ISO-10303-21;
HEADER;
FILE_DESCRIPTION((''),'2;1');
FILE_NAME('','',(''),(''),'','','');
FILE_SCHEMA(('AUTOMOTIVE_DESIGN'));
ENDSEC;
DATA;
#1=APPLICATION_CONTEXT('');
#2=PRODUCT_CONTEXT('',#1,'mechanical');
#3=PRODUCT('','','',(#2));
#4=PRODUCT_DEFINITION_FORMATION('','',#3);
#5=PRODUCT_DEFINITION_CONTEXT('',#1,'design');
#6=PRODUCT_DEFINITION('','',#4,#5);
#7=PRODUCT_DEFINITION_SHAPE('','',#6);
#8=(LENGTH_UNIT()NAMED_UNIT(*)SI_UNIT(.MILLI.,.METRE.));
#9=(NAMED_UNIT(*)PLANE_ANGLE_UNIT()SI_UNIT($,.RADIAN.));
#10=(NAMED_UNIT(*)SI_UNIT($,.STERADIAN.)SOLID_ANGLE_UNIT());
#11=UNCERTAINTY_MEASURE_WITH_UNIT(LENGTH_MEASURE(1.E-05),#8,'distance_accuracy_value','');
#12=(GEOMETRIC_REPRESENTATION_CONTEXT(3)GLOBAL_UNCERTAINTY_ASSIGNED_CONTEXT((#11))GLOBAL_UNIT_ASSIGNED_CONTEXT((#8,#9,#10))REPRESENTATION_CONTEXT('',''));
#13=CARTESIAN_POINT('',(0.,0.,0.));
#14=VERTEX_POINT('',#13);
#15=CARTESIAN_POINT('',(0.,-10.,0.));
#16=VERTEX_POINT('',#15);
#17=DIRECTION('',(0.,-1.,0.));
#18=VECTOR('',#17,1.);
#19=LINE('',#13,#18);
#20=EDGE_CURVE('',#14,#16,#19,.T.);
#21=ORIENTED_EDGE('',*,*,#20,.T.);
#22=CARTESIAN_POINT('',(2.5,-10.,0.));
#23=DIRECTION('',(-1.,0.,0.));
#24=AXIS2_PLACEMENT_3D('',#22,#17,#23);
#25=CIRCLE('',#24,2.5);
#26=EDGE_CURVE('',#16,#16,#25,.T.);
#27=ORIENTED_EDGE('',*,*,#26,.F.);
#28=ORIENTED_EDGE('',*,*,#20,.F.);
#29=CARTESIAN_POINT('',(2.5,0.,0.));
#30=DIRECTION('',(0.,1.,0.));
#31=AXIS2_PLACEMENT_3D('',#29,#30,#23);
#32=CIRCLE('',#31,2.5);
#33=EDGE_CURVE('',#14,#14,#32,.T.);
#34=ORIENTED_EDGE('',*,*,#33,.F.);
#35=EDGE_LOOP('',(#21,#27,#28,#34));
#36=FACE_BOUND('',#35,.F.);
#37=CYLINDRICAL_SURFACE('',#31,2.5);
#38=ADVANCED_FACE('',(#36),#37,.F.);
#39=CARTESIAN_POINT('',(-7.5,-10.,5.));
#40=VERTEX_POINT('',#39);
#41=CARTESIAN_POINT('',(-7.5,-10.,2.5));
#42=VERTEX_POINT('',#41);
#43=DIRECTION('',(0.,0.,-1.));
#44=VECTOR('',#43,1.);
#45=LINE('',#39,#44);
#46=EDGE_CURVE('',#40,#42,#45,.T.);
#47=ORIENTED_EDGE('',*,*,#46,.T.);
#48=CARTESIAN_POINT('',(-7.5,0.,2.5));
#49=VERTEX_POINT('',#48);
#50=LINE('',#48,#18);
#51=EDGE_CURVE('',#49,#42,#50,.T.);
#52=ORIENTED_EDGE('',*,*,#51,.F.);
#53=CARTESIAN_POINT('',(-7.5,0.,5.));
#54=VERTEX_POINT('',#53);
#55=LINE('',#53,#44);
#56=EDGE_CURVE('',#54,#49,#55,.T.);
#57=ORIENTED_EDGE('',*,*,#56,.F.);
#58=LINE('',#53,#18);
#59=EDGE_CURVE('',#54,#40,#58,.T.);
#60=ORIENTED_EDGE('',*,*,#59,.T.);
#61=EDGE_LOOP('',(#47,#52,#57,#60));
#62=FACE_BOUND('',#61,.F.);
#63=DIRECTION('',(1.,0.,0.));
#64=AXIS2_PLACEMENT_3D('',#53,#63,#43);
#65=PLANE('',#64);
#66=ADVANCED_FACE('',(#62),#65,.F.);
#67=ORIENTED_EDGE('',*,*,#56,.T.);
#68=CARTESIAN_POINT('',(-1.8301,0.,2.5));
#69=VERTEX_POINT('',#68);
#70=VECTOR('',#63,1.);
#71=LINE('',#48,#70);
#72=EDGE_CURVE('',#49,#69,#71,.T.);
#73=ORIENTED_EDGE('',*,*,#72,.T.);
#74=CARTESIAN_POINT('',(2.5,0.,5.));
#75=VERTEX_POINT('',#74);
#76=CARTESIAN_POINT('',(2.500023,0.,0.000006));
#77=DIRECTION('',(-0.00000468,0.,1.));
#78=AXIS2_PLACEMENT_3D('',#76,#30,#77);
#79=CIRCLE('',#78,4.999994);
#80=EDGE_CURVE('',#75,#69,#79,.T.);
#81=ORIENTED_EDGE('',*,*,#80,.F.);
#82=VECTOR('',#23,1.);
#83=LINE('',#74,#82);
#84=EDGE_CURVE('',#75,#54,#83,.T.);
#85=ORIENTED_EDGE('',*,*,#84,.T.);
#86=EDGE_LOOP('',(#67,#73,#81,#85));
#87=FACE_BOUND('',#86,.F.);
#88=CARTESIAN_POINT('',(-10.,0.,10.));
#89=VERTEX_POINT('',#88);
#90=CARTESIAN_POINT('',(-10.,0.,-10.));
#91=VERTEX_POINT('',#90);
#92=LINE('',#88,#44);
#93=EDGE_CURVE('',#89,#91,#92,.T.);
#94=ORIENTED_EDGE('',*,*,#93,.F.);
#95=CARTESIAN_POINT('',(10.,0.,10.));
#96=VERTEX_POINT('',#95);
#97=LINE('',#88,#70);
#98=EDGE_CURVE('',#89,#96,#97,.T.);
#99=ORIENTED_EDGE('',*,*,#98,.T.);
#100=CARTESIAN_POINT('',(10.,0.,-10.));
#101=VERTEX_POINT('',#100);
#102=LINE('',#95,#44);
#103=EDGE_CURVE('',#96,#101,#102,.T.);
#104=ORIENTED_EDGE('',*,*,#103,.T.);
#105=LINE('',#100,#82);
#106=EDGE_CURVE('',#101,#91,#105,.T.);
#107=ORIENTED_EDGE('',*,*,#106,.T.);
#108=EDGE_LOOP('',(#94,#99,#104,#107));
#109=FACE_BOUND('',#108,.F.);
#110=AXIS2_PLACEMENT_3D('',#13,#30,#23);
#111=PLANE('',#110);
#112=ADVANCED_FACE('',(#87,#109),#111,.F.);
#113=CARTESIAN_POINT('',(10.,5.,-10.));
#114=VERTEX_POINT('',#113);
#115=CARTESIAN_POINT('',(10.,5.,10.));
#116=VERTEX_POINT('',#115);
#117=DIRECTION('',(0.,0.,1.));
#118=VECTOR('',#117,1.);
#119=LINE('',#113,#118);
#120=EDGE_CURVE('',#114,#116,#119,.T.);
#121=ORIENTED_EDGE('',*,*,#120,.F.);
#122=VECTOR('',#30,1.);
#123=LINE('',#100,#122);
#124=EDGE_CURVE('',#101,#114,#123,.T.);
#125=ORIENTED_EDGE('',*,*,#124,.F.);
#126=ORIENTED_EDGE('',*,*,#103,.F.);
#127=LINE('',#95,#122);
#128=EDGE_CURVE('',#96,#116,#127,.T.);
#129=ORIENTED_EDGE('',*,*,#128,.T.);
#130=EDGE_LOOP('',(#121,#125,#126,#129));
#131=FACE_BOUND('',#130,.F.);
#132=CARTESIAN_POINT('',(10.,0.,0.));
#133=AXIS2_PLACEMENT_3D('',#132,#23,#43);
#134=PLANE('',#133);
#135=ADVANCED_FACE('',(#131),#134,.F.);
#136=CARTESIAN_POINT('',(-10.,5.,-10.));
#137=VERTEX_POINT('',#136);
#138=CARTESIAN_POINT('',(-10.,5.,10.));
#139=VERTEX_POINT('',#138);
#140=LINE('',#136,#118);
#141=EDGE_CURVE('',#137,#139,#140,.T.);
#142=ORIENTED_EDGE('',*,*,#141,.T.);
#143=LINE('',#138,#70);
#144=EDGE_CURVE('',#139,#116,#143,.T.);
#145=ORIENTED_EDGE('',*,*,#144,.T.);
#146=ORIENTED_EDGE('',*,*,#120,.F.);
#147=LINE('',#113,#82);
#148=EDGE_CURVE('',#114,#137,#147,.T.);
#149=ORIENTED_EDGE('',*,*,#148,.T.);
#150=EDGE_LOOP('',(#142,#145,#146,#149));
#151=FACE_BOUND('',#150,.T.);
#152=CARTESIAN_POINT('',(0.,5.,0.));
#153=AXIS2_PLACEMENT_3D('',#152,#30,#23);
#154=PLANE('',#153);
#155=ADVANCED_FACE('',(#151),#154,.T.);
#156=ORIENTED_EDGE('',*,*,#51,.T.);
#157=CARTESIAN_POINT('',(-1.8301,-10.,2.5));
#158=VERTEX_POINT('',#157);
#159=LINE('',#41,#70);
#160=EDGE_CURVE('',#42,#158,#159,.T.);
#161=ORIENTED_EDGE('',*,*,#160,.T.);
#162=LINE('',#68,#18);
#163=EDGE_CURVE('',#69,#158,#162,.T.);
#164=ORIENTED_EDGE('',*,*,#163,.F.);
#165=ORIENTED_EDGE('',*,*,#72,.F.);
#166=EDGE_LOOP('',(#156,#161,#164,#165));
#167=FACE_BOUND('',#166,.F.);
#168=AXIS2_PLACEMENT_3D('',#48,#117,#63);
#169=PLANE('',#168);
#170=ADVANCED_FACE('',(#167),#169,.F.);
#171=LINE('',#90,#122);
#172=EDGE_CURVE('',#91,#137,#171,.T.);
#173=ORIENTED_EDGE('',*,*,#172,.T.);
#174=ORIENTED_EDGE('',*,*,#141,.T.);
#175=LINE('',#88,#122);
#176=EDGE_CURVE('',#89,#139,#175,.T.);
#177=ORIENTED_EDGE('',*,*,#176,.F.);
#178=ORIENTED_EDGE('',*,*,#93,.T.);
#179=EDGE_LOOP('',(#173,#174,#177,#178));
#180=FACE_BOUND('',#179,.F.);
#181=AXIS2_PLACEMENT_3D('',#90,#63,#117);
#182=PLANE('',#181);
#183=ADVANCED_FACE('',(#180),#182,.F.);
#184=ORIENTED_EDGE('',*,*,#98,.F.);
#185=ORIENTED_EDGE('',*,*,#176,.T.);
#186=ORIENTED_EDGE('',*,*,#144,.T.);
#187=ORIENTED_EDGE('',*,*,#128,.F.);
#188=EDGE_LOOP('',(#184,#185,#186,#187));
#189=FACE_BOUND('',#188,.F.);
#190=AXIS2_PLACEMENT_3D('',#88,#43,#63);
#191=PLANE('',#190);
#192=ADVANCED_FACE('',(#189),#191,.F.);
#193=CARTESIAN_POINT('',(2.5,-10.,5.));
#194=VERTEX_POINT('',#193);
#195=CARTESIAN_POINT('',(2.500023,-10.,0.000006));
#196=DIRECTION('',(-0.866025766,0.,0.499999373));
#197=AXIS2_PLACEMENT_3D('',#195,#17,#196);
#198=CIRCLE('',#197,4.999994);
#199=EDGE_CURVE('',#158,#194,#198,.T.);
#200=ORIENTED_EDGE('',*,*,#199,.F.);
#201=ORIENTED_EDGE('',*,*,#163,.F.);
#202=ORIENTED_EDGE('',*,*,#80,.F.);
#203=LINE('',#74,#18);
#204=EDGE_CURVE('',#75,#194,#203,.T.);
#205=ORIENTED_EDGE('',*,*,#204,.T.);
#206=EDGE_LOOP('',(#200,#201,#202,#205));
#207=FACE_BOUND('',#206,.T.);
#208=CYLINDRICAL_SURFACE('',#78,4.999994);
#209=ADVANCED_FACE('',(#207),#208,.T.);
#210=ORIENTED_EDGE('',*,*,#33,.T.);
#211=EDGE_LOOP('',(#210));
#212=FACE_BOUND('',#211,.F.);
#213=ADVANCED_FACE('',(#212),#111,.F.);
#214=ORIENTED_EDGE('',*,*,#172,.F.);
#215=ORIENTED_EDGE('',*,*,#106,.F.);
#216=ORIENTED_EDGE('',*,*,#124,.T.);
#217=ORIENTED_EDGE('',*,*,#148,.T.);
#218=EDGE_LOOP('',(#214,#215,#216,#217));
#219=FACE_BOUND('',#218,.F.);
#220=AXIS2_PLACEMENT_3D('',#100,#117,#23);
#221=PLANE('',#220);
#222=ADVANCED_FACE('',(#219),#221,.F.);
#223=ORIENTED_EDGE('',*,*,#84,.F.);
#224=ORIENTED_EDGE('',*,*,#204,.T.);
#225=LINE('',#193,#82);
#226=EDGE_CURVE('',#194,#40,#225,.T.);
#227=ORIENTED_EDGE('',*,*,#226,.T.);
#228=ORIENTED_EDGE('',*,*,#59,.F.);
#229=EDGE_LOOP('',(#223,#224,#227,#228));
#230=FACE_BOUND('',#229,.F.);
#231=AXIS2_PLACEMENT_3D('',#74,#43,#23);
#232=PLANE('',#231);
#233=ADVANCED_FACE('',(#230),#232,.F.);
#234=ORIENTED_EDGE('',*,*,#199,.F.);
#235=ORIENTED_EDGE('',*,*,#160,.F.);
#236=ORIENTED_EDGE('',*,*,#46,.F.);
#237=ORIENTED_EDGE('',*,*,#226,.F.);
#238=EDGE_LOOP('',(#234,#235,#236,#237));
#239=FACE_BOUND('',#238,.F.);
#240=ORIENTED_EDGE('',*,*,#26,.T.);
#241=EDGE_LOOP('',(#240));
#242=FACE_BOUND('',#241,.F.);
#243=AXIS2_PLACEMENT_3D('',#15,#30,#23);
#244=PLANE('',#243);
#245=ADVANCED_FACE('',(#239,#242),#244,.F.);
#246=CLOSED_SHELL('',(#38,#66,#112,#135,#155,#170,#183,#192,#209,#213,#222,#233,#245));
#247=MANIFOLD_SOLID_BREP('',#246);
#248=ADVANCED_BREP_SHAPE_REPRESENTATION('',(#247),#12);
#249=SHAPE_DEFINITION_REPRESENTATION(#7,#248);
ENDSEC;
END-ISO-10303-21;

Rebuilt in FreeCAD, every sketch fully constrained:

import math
import FreeCAD as App
import Part
import Sketcher

V = App.Vector

doc = App.newDocument("Part")
params = doc.addObject("Spreadsheet::Sheet", "Params")
for row, (alias, value) in enumerate([
    ("sketch1_diameter", "5 mm"),
    ("sketch1_radius", "5 mm"),
    ("sketch1_height", "2.5 mm"),
    ("sketch1_width", "10 mm"),
    ("pad1_length", "10 mm"),
    ("sketch2_width", "20 mm"),
    ("pad2_length", "5 mm"),
], start=1):
    params.set(f"A{row}", alias)
    params.set(f"B{row}", "=" + value)
    params.setAlias(f"B{row}", alias)

body = doc.addObject("PartDesign::Body", "Body")

sketch1 = body.newObject("Sketcher::SketchObject", "Sketch")
sketch1.AttachmentSupport = (doc.getObject("XZ_Plane"), [""])
sketch1.MapMode = "FlatFace"
sketch1.addGeometry(Part.LineSegment(V(-1.8301, 2.5, 0), V(-7.5, 2.5, 0)), False)
sketch1.addGeometry(Part.LineSegment(V(-7.5, 2.5, 0), V(-7.5, 5, 0)), False)
sketch1.addGeometry(Part.LineSegment(V(-7.5, 5, 0), V(2.5, 5, 0)), False)
sketch1.addGeometry(Part.ArcOfCircle(Part.Circle(V(2.5, 0, 0), V(0, 0, 1), 5), math.radians(149.999845), math.radians(450)), False)
sketch1.addGeometry(Part.Circle(V(2.5, 0, 0), V(0, 0, 1), 2.5), False)
sketch1.addConstraint(Sketcher.Constraint("Coincident", 0, 2, 1, 1))
sketch1.addConstraint(Sketcher.Constraint("Coincident", 1, 2, 2, 1))
sketch1.addConstraint(Sketcher.Constraint("Tangent", 2, 2, 3, 2))
sketch1.addConstraint(Sketcher.Constraint("Coincident", 3, 1, 0, 1))
sketch1.addConstraint(Sketcher.Constraint("Horizontal", 0))
sketch1.addConstraint(Sketcher.Constraint("Vertical", 1))
sketch1.addConstraint(Sketcher.Constraint("Horizontal", 2))
sketch1.addConstraint(Sketcher.Constraint("Coincident", 4, 3, 3, 3))
sketch1.addConstraint(Sketcher.Constraint("PointOnObject", 3, 3, -1))
sketch1.addConstraint(Sketcher.Constraint("Diameter", 4, 5.0))
sketch1.addConstraint(Sketcher.Constraint("Radius", 3, 5.0))
sketch1.addConstraint(Sketcher.Constraint("DistanceY", 1, 1, 1, 2, 2.5))
sketch1.addConstraint(Sketcher.Constraint("DistanceX", -1, 1, 3, 3, 2.5))
sketch1.addConstraint(Sketcher.Constraint("DistanceX", 2, 1, 2, 2, 10.0))
sketch1.setExpression("Constraints[9]", "Params.sketch1_diameter")
sketch1.setExpression("Constraints[10]", "Params.sketch1_radius")
sketch1.setExpression("Constraints[11]", "Params.sketch1_height")
sketch1.setExpression("Constraints[13]", "Params.sketch1_width")
pad1 = body.newObject("PartDesign::Pad", "Pad")
pad1.Profile = sketch1
pad1.setExpression("Length", "Params.pad1_length")

sketch2 = body.newObject("Sketcher::SketchObject", "Sketch001")
sketch2.AttachmentSupport = (doc.getObject("XZ_Plane"), [""])
sketch2.MapMode = "FlatFace"
sketch2.addGeometry(Part.LineSegment(V(10, -10, 0), V(-10, -10, 0)), False)
sketch2.addGeometry(Part.LineSegment(V(-10, -10, 0), V(-10, 10, 0)), False)
sketch2.addGeometry(Part.LineSegment(V(-10, 10, 0), V(10, 10, 0)), False)
sketch2.addGeometry(Part.LineSegment(V(10, 10, 0), V(10, -10, 0)), False)
sketch2.addConstraint(Sketcher.Constraint("Coincident", 0, 2, 1, 1))
sketch2.addConstraint(Sketcher.Constraint("Coincident", 1, 2, 2, 1))
sketch2.addConstraint(Sketcher.Constraint("Coincident", 2, 2, 3, 1))
sketch2.addConstraint(Sketcher.Constraint("Coincident", 3, 2, 0, 1))
sketch2.addConstraint(Sketcher.Constraint("Horizontal", 0))
sketch2.addConstraint(Sketcher.Constraint("Vertical", 1))
sketch2.addConstraint(Sketcher.Constraint("Horizontal", 2))
sketch2.addConstraint(Sketcher.Constraint("Vertical", 3))
sketch2.addConstraint(Sketcher.Constraint("Symmetric", 0, 2, 2, 2, -1, 1))
sketch2.addConstraint(Sketcher.Constraint("Equal", 2, 1))
sketch2.addConstraint(Sketcher.Constraint("DistanceX", 0, 2, 0, 1, 20.0))
sketch2.setExpression("Constraints[10]", "Params.sketch2_width")
pad2 = body.newObject("PartDesign::Pad", "Pad001")
pad2.Profile = sketch2
pad2.setExpression("Length", "Params.pad2_length")
pad2.Reversed = True

doc.recompute()
